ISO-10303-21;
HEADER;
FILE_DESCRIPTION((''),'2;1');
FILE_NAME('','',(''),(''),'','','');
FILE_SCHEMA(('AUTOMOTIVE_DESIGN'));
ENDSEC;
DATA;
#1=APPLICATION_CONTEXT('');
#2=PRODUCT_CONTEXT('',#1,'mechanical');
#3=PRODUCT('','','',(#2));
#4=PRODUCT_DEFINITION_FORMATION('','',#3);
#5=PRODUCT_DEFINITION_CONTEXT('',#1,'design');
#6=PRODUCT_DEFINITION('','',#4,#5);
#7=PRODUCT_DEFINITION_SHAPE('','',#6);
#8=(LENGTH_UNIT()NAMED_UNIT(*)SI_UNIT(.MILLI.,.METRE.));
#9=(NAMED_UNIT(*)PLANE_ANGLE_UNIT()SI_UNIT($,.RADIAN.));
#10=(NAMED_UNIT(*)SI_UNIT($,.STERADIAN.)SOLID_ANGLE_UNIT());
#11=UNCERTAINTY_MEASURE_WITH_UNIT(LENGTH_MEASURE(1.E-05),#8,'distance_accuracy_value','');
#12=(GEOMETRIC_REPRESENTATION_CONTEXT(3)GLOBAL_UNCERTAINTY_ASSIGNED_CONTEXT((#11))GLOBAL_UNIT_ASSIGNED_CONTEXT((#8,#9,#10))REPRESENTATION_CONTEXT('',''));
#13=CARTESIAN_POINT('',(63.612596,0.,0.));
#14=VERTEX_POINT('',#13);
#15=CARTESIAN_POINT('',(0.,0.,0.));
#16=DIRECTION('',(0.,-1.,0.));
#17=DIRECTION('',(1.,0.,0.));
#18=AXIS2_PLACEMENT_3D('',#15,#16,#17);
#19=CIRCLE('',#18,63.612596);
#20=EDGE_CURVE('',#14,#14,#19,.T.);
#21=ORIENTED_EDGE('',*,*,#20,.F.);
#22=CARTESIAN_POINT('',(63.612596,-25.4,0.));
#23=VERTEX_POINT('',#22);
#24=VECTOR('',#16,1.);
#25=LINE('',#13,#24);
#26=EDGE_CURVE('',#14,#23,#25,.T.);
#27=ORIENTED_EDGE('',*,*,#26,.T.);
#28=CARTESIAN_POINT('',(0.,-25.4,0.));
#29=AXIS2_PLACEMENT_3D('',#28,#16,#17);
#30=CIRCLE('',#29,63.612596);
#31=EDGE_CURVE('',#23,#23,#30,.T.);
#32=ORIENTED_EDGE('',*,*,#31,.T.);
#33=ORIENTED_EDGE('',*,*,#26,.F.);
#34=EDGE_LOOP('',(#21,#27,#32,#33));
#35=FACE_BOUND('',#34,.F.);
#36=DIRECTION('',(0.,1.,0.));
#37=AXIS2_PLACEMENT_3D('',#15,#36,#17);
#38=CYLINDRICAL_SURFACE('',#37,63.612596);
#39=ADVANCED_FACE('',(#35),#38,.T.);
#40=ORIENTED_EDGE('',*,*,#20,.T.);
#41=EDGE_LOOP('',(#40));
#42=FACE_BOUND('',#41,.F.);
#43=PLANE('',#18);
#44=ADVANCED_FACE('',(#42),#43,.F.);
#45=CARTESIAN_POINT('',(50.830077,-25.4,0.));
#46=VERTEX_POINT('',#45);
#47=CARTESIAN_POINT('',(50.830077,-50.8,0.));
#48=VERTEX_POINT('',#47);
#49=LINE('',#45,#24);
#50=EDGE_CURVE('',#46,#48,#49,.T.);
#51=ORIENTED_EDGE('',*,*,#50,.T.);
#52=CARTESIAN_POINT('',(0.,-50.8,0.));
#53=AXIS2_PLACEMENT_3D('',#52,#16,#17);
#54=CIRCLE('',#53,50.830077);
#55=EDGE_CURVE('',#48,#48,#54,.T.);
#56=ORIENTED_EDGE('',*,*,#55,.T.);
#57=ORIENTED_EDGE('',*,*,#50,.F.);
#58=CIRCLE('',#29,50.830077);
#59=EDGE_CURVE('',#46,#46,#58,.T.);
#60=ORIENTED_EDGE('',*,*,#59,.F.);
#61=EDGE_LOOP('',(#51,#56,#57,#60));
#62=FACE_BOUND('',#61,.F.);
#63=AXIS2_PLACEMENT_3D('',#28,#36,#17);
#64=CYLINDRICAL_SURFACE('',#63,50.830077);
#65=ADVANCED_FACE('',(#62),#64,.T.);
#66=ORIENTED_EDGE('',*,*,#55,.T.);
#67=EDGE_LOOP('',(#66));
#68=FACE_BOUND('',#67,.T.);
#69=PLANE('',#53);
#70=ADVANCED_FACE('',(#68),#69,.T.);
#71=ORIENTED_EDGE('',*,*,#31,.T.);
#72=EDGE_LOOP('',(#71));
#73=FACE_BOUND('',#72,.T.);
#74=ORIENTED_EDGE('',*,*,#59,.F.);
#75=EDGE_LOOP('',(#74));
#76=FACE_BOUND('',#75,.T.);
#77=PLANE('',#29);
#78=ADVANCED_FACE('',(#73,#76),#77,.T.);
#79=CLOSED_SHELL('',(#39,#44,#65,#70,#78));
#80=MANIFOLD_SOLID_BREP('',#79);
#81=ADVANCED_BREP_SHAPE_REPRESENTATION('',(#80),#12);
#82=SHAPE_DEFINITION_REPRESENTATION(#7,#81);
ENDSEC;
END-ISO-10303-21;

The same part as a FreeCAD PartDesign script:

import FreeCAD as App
import Part
import Sketcher
Q = App.Units.Quantity


def add_polygon(sketch, points):
    """Adds a closed chain of lines whose ends are joined by coincident constraints."""
    first, n = sketch.GeometryCount, len(points)
    for a, b in zip(points, points[1:] + points[:1]):
        sketch.addGeometry(Part.LineSegment(App.Vector(*a, 0), App.Vector(*b, 0)), False)
    for i in range(n):
        sketch.addConstraint(Sketcher.Constraint("Coincident", first + i, 2, first + (i + 1) % n, 1))

doc = App.newDocument("Part")
body = doc.addObject("PartDesign::Body", "Body")

# Sketch on XZ plane
sketch1 = body.newObject("Sketcher::SketchObject", "Sketch")
sketch1.AttachmentSupport = (doc.getObject("XZ_Plane"), [""])
sketch1.MapMode = "FlatFace"
add_polygon(sketch1, [(-12, 13), (-12, -15), (13, -15), (13, 13)])  # lines 0-3
sketch1.addConstraint([
    Sketcher.Constraint("Vertical", 0),
    Sketcher.Constraint("Horizontal", 1),
    Sketcher.Constraint("Vertical", 2),
    Sketcher.Constraint("Horizontal", 3),
    Sketcher.Constraint("DistanceY", 0, 2, 0, 1, 27.49747),
    Sketcher.Constraint("DistanceX", 1, 1, 1, 2, 25.016323),
    Sketcher.Constraint("DistanceY", 0, 2, -1, 1, 14.608031),
    Sketcher.Constraint("DistanceX", 0, 2, -1, 1, 12.316626),
])
pad1 = body.newObject("PartDesign::Pad", "Pad")
pad1.Profile = sketch1
pad1.Length = Q("1 in")

# Sketch on XZ plane
sketch2 = body.newObject("Sketcher::SketchObject", "Sketch001")
sketch2.AttachmentSupport = (doc.getObject("XZ_Plane"), [""])
sketch2.MapMode = "FlatFace"
sketch2.addGeometry(Part.Circle(App.Vector(0, 0, 0), App.Vector(0, 0, 1), 64), False)
sketch2.addConstraint([
    Sketcher.Constraint("Coincident", 0, 3, -1, 1),
    Sketcher.Constraint("Diameter", 0, 127.225192),
])
pad2 = body.newObject("PartDesign::Pad", "Pad001")
pad2.Profile = sketch2
pad2.Length = Q("1 in")

# Sketch on XZ plane
sketch3 = body.newObject("Sketcher::SketchObject", "Sketch002")
sketch3.AttachmentSupport = (doc.getObject("XZ_Plane"), [""])
sketch3.MapMode = "FlatFace"
sketch3.AttachmentOffset = App.Placement(App.Vector(0, 0, 1 * 25.4), App.Rotation())
sketch3.addGeometry(Part.Circle(App.Vector(0, 0, 0), App.Vector(0, 0, 1), 51), False)
sketch3.addConstraint([
    Sketcher.Constraint("Coincident", 0, 3, -1, 1),
    Sketcher.Constraint("Diameter", 0, 101.660154),
])
pad3 = body.newObject("PartDesign::Pad", "Pad002")
pad3.Profile = sketch3
pad3.Length = Q("1 in")

doc.recompute()
